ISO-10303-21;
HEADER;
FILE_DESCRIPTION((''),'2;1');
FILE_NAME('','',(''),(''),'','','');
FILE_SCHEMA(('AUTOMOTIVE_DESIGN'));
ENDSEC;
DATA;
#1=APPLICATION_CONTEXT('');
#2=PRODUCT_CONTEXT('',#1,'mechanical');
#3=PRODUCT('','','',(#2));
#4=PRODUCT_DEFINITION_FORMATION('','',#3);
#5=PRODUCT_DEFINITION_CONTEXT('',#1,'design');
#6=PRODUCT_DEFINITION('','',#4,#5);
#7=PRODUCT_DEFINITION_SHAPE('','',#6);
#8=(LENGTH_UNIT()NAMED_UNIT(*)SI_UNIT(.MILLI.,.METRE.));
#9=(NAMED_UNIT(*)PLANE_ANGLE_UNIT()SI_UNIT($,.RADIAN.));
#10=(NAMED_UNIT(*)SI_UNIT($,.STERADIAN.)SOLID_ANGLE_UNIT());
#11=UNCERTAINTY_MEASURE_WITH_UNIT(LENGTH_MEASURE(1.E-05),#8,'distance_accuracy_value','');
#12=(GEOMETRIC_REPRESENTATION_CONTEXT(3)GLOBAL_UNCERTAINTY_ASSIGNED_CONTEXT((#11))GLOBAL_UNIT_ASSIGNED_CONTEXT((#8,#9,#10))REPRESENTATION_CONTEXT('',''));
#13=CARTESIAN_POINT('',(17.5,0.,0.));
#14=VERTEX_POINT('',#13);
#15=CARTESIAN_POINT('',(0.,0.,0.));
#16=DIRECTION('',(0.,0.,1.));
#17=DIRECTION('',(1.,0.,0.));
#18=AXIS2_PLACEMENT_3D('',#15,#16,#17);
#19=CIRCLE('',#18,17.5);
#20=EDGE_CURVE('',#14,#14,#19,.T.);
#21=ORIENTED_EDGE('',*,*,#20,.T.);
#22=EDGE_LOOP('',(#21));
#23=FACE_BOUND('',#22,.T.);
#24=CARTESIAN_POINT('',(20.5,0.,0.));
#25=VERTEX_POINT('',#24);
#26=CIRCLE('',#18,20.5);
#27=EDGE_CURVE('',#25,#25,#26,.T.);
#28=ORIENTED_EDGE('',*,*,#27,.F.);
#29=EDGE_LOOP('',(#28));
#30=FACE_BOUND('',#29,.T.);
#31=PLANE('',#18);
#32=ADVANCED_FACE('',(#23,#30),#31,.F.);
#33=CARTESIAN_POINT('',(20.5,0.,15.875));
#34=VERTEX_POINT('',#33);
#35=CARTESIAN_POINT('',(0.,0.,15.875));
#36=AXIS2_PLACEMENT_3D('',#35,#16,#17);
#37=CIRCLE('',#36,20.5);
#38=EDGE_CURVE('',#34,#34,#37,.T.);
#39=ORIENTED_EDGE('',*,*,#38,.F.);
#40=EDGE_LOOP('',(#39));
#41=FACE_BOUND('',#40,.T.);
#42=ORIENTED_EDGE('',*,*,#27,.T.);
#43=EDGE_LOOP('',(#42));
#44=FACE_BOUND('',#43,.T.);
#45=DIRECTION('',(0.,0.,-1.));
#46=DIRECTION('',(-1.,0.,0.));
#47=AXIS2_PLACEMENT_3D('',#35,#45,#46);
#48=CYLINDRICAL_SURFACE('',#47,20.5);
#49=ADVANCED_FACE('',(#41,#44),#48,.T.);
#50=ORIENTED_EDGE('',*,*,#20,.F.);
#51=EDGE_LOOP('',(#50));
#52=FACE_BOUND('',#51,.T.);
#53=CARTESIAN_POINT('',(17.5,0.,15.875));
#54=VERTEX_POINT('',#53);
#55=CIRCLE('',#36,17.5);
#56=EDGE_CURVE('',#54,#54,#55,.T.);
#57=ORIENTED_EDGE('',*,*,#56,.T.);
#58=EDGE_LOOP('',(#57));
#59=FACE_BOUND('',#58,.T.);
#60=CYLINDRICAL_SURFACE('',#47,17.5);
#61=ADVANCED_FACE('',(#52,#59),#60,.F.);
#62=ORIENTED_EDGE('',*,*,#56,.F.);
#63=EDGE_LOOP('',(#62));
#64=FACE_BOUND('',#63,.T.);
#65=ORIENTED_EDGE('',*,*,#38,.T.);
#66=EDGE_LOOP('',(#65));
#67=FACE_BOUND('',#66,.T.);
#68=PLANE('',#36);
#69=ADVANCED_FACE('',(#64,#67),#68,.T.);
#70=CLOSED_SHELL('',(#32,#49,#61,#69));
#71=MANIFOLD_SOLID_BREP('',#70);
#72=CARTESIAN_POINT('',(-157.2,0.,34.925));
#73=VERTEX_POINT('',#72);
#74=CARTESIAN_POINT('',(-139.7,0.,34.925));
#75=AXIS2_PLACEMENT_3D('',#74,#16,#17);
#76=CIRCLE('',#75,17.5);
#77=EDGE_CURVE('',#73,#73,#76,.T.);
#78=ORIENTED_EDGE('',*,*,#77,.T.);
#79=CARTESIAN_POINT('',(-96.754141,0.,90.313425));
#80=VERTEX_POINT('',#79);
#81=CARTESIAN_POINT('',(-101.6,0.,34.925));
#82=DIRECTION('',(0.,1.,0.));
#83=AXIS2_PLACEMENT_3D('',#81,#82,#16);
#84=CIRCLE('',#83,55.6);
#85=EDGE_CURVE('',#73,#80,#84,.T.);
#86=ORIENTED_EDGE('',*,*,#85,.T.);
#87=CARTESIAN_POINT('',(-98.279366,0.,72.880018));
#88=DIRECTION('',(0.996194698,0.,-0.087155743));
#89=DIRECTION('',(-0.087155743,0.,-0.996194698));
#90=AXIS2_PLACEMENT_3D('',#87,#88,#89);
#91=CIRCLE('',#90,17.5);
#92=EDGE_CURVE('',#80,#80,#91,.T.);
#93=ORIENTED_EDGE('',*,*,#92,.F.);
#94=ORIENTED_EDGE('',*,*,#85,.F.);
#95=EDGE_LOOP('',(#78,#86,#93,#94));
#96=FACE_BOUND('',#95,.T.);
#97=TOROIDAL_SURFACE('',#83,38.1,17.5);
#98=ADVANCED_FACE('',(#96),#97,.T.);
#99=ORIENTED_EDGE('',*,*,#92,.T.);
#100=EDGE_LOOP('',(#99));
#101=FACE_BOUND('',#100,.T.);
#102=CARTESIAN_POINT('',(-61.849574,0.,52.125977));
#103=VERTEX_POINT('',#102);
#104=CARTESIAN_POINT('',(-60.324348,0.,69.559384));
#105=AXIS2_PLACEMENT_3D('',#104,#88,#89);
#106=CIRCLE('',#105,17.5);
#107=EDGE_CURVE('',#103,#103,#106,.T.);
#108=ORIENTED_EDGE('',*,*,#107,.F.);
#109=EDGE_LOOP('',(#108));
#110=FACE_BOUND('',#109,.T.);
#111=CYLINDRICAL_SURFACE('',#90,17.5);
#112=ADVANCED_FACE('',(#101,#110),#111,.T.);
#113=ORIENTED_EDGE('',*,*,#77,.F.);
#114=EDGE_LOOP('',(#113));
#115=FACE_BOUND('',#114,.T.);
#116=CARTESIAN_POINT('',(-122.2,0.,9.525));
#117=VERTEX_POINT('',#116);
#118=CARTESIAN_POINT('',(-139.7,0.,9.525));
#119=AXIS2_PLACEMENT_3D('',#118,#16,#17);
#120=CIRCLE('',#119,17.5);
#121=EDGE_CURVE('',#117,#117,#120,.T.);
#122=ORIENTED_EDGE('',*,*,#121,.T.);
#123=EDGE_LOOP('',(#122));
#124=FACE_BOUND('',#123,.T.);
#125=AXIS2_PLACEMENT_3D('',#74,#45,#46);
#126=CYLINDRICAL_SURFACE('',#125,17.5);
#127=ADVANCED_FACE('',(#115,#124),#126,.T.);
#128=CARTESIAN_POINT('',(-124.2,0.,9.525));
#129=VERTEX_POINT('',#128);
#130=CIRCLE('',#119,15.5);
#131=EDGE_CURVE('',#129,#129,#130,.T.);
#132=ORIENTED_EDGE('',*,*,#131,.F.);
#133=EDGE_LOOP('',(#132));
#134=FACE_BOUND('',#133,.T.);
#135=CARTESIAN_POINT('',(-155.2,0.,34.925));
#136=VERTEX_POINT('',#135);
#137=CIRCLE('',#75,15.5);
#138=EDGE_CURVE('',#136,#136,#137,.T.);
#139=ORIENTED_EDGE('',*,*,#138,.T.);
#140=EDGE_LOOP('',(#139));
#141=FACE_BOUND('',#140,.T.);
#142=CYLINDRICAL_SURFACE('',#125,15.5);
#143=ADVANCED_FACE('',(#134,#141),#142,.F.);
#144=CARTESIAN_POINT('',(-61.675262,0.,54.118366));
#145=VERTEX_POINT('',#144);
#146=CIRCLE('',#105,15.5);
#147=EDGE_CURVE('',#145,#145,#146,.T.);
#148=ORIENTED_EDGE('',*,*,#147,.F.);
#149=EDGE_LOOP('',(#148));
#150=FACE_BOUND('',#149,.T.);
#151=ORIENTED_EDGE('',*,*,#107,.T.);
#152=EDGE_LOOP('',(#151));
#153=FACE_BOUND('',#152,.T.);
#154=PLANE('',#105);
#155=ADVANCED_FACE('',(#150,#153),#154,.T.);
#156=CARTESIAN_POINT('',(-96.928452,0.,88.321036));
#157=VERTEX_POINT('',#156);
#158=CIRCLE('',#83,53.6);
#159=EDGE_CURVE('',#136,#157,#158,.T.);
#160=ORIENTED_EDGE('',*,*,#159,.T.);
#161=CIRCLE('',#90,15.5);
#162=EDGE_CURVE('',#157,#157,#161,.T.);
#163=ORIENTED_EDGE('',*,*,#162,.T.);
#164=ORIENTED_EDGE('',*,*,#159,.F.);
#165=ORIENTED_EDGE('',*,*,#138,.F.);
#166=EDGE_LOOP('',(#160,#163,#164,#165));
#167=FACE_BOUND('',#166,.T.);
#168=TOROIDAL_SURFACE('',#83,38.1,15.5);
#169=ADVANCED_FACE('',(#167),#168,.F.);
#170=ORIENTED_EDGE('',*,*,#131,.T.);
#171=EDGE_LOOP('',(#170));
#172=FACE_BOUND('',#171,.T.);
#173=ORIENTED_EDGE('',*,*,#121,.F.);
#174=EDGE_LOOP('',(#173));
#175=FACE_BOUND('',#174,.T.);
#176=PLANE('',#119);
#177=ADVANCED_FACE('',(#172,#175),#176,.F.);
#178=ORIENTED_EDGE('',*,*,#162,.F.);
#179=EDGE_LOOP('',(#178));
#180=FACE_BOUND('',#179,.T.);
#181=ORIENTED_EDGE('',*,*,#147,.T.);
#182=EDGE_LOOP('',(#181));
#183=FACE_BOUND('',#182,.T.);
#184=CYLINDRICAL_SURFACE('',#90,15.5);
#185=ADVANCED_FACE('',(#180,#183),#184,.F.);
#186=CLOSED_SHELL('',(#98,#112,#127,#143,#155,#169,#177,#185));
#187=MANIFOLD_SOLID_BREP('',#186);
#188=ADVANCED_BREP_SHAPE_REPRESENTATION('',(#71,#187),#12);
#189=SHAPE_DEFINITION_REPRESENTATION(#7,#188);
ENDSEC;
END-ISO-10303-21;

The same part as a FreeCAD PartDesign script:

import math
import FreeCAD as App
import Part
import Sketcher
from FreeCAD import Vector
Q = App.Units.Quantity

doc = App.newDocument("Part")
body = doc.addObject("PartDesign::Body", "Body")

sketch1 = body.newObject("Sketcher::SketchObject", "Sketch")
sketch1.AttachmentSupport = (doc.getObject("XY_Plane"), [""])
sketch1.MapMode = "FlatFace"
sketch1.addGeometry([
    Part.Circle(Vector(0, 0, 0), Vector(0, 0, 1), 20),
    Part.Circle(Vector(0, 0, 0), Vector(0, 0, 1), 18),
], False)
sketch1.addConstraint([
    Sketcher.Constraint("Coincident", 0, 3, -1, 1),
    Sketcher.Constraint("Coincident", 1, 3, -1, 1),
    Sketcher.Constraint("Diameter", 0, Q("41 mm")),
    Sketcher.Constraint("Diameter", 1, Q("35 mm")),
])
pad1 = body.newObject("PartDesign::Pad", "Pad")
pad1.Profile = sketch1
pad1.Length = Q("0.625 in")
body2 = doc.addObject("PartDesign::Body", "Body001")

sketch2 = body2.newObject("Sketcher::SketchObject", "Sketch001")
sketch2.AttachmentSupport = (doc.getObject("XY_Plane001"), [""])
sketch2.MapMode = "FlatFace"
sketch2.AttachmentOffset = App.Placement(Vector(0, 0, 0.375 * 25.4), App.Rotation())
sketch2.addGeometry([
    Part.Circle(Vector(-140, 0, 0), Vector(0, 0, 1), 18),
    Part.Circle(Vector(-140, 0, 0), Vector(0, 0, 1), 16),
], False)
sketch2.addConstraint([
    Sketcher.Constraint("Coincident", 1, 3, 0, 3),
    Sketcher.Constraint("PointOnObject", 0, 3, -1),
    Sketcher.Constraint("DistanceX", 0, 3, -1, 1, Q("5.5 in")),
    Sketcher.Constraint("Diameter", 0, Q("35 mm")),
    Sketcher.Constraint("Diameter", 1, Q("31 mm")),
])

sketch3 = body2.newObject("Sketcher::SketchObject", "Sketch002")
sketch3.AttachmentSupport = (doc.getObject("XZ_Plane001"), [""])
sketch3.MapMode = "FlatFace"
sketch3.addGeometry([
    Part.LineSegment(Vector(-60, 70, 0), Vector(-98, 73, 0)),
    Part.ArcOfCircle(Part.Circle(Vector(-102, 35, 0), Vector(0, 0, 1), 38), math.radians(85), math.radians(180)),
    Part.LineSegment(Vector(-140, 35, 0), Vector(-140, 10, 0)),
], False)
sketch3.addConstraint([
    Sketcher.Constraint("Tangent", 0, 2, 1, 1),
    Sketcher.Constraint("Tangent", 1, 2, 2, 1),
    Sketcher.Constraint("Vertical", 2),
    Sketcher.Constraint("Radius", 1, Q("1.5 in")),
    Sketcher.Constraint("DistanceY", 2, 2, 2, 1, Q("1 in")),
    Sketcher.Constraint("DistanceX", 1, 3, -1, 1, Q("4 in")),
    Sketcher.Constraint("Angle", 0, Q("175 deg")),
    Sketcher.Constraint("Distance", 0, Q("1.5 in")),
    Sketcher.Constraint("DistanceY", -1, 1, 1, 3, Q("1.375 in")),
])
doc.recompute()

additivepipe = body2.newObject("PartDesign::AdditivePipe", "AdditivePipe")
additivepipe.Profile = sketch2
additivepipe.Spine = (sketch3, ["Edge1", "Edge2", "Edge3"])

doc.recompute()
